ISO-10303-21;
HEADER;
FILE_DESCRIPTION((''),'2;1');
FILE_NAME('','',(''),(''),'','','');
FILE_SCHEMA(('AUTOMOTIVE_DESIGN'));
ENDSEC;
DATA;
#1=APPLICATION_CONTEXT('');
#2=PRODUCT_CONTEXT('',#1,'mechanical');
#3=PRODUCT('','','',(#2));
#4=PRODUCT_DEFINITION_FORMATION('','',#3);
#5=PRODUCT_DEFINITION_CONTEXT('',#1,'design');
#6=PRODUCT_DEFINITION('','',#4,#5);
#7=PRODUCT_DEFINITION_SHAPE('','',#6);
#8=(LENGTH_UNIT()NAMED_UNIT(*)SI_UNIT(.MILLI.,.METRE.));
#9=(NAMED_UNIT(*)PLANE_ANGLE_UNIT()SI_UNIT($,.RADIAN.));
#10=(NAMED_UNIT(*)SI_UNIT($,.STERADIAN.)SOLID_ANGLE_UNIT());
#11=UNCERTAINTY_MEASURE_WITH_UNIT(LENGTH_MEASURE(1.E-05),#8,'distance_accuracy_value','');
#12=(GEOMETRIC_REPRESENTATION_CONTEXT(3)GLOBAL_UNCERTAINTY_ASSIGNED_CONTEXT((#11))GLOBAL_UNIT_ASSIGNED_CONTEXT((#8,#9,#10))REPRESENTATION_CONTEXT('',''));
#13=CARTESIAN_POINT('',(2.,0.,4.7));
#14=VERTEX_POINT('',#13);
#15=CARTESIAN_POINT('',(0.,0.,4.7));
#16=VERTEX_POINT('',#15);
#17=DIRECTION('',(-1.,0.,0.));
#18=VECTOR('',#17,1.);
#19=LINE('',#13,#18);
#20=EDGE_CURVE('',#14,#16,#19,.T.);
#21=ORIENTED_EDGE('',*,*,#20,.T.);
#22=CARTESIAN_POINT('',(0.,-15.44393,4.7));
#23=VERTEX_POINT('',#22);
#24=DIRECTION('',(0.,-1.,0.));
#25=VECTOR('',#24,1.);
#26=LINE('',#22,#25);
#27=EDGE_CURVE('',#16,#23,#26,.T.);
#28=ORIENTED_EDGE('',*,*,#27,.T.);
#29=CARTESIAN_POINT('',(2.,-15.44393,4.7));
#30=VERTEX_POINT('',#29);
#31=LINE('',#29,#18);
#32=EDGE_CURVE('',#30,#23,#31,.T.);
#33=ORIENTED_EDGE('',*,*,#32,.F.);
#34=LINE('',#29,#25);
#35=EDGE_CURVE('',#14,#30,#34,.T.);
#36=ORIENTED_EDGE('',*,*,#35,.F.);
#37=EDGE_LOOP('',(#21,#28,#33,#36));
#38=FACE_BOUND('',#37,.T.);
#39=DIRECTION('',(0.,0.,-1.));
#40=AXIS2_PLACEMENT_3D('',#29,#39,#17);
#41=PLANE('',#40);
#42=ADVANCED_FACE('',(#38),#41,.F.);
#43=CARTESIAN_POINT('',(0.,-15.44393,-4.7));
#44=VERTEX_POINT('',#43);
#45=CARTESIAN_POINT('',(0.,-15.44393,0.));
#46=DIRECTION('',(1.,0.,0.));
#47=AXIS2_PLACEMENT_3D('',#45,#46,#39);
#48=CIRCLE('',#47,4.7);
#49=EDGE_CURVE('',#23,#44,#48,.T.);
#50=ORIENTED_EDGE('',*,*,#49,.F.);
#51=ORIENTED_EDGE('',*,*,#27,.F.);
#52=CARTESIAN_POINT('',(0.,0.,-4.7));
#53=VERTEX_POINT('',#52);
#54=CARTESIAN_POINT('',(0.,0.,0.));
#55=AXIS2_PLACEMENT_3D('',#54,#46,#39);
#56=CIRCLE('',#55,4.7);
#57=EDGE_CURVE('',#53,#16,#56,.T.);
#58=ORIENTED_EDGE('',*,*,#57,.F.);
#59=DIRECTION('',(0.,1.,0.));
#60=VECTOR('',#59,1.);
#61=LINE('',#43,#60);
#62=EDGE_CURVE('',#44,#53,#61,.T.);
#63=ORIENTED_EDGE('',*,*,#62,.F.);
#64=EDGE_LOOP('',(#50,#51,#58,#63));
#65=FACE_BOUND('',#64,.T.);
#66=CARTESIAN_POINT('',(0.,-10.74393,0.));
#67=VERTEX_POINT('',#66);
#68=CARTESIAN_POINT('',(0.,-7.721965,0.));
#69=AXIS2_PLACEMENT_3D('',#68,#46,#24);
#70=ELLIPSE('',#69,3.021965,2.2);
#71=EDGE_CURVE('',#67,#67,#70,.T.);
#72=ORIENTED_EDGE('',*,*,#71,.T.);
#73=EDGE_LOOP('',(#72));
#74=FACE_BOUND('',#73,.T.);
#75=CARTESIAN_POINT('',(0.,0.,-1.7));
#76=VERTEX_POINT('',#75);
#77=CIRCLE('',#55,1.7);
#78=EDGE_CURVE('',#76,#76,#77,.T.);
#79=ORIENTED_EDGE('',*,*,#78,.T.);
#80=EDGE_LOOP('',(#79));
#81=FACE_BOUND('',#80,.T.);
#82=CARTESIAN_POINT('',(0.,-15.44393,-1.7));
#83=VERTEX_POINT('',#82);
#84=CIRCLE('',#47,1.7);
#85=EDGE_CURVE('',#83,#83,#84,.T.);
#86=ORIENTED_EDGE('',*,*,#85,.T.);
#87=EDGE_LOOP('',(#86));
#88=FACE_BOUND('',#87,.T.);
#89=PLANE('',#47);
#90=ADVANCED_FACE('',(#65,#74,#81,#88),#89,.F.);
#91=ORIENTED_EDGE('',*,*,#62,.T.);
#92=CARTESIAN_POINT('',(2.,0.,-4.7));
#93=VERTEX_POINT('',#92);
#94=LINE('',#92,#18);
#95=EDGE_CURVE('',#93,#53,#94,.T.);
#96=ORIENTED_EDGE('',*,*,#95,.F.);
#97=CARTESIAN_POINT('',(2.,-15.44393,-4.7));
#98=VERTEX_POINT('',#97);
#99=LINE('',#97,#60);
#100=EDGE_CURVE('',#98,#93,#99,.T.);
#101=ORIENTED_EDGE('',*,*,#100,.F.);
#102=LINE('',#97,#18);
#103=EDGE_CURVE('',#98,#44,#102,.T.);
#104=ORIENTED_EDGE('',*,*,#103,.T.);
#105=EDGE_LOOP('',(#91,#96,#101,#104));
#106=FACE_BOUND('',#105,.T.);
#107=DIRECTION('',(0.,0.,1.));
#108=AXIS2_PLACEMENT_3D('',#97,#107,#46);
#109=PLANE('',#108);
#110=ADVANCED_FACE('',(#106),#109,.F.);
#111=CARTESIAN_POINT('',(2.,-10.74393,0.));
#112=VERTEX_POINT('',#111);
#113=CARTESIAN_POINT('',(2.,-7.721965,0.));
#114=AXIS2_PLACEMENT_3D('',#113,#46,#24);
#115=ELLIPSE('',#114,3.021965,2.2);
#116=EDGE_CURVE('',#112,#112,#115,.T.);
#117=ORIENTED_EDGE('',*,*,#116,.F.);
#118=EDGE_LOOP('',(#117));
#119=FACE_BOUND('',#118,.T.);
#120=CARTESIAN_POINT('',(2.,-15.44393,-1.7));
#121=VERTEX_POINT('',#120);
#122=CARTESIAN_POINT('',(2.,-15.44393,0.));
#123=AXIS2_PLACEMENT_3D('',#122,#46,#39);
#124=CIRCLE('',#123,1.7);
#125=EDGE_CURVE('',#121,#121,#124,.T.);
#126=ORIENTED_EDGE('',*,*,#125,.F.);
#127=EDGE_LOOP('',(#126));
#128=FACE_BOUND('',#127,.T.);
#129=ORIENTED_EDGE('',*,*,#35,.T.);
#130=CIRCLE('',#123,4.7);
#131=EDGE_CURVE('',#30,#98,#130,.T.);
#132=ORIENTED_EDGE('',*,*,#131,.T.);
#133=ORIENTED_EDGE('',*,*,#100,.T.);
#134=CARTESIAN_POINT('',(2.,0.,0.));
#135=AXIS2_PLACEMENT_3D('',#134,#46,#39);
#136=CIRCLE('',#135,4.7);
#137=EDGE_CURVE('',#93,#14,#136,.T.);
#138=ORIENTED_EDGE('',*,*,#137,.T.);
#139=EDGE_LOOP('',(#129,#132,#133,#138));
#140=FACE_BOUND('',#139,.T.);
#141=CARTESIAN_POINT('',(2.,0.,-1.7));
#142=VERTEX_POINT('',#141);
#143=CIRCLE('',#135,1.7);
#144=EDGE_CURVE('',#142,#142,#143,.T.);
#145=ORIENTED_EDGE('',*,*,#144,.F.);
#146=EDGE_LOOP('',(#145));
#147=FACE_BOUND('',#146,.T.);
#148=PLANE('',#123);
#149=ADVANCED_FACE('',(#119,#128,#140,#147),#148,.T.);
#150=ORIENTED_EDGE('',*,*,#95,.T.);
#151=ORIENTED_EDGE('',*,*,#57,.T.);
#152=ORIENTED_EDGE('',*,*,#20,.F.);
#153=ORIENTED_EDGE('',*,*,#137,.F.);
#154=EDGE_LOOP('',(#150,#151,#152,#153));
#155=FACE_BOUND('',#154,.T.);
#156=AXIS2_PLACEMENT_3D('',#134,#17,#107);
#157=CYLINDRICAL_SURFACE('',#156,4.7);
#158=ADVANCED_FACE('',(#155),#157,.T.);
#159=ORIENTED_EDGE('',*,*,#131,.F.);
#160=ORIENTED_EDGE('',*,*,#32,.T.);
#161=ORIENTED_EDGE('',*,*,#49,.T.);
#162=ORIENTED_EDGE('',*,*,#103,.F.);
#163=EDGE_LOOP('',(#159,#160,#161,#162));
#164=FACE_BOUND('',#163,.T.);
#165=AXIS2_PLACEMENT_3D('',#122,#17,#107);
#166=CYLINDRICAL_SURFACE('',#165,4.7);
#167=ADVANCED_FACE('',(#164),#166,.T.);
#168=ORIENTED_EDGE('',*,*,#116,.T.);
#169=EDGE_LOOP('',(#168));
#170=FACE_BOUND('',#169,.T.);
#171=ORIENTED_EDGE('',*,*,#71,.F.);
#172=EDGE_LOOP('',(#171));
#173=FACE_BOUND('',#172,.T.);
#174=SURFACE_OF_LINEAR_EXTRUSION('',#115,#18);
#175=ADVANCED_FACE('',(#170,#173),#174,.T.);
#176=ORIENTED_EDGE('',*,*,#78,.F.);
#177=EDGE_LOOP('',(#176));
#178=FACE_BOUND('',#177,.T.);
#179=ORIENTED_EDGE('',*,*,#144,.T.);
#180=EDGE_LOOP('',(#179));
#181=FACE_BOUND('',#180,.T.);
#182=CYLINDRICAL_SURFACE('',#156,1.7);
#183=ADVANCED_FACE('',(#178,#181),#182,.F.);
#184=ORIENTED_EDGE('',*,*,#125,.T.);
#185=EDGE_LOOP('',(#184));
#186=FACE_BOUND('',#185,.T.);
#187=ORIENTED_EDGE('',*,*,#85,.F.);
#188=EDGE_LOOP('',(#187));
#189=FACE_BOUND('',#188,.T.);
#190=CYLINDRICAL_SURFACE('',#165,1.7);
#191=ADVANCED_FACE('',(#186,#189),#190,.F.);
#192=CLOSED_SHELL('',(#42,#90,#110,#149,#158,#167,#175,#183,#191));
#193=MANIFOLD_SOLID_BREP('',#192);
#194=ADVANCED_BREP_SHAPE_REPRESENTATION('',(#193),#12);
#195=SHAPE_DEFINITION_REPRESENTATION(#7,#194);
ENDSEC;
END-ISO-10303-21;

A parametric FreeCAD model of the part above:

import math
import FreeCAD as App
import Part
import Sketcher
from FreeCAD import Vector

doc = App.newDocument("Part")
body = doc.addObject("PartDesign::Body", "Body")

# Sketch on YZ plane
sketch1 = doc.addObject("Sketcher::SketchObject", "Sketch")
body.addObject(sketch1)
sketch1.AttachmentSupport = (doc.YZ_Plane, [""])
sketch1.MapMode = "FlatFace"
sketch1.addGeometry([
    Part.LineSegment(Vector(0, 4.7, 0), Vector(-15.44393, 4.7, 0)),  # 0
    Part.ArcOfCircle(Part.Circle(Vector(-15.44393, 0, 0), Vector(0, 0, 1), 4.7), math.radians(90), math.radians(270)),  # 1
    Part.LineSegment(Vector(-15.44393, -4.7, 0), Vector(0, -4.7, 0)),  # 2
    Part.ArcOfCircle(Part.Circle(Vector(0, 0, 0), Vector(0, 0, 1), 4.7), math.radians(-90), math.radians(90)),  # 3
    Part.Circle(Vector(-15.44393, 0, 0), Vector(0, 0, 1), 1.7),  # 4
    Part.Ellipse(Vector(-10.74393, 0, 0), Vector(-7.721965, -2.2, 0), Vector(-7.721965, 0, 0)),  # 5
    Part.Circle(Vector(0, 0, 0), Vector(0, 0, 1), 1.7),  # 6
], False)
sketch1.addConstraint([
    Sketcher.Constraint("Block", 5),
    Sketcher.Constraint("Tangent", 0, 2, 1, 1),
    Sketcher.Constraint("Tangent", 1, 2, 2, 1),
    Sketcher.Constraint("Tangent", 2, 2, 3, 1),
    Sketcher.Constraint("Tangent", 3, 2, 0, 1),
    Sketcher.Constraint("Horizontal", 0),
    Sketcher.Constraint("Horizontal", 2),
    Sketcher.Constraint("Coincident", 3, 3, -1, 1),
    Sketcher.Constraint("Coincident", 6, 3, -1, 1),
    Sketcher.Constraint("Coincident", 4, 3, 1, 3),
    Sketcher.Constraint("Equal", 4, 6),
    Sketcher.Constraint("Diameter", 4, 3.4),
    Sketcher.Constraint("Radius", 1, 4.7),
    Sketcher.Constraint("DistanceX", 0, 2, 0, 1, 15.44393),
])
pad1 = doc.addObject("PartDesign::Pad", "Pad")
body.addObject(pad1)
pad1.Profile = sketch1
pad1.Length = 2

doc.recompute()
